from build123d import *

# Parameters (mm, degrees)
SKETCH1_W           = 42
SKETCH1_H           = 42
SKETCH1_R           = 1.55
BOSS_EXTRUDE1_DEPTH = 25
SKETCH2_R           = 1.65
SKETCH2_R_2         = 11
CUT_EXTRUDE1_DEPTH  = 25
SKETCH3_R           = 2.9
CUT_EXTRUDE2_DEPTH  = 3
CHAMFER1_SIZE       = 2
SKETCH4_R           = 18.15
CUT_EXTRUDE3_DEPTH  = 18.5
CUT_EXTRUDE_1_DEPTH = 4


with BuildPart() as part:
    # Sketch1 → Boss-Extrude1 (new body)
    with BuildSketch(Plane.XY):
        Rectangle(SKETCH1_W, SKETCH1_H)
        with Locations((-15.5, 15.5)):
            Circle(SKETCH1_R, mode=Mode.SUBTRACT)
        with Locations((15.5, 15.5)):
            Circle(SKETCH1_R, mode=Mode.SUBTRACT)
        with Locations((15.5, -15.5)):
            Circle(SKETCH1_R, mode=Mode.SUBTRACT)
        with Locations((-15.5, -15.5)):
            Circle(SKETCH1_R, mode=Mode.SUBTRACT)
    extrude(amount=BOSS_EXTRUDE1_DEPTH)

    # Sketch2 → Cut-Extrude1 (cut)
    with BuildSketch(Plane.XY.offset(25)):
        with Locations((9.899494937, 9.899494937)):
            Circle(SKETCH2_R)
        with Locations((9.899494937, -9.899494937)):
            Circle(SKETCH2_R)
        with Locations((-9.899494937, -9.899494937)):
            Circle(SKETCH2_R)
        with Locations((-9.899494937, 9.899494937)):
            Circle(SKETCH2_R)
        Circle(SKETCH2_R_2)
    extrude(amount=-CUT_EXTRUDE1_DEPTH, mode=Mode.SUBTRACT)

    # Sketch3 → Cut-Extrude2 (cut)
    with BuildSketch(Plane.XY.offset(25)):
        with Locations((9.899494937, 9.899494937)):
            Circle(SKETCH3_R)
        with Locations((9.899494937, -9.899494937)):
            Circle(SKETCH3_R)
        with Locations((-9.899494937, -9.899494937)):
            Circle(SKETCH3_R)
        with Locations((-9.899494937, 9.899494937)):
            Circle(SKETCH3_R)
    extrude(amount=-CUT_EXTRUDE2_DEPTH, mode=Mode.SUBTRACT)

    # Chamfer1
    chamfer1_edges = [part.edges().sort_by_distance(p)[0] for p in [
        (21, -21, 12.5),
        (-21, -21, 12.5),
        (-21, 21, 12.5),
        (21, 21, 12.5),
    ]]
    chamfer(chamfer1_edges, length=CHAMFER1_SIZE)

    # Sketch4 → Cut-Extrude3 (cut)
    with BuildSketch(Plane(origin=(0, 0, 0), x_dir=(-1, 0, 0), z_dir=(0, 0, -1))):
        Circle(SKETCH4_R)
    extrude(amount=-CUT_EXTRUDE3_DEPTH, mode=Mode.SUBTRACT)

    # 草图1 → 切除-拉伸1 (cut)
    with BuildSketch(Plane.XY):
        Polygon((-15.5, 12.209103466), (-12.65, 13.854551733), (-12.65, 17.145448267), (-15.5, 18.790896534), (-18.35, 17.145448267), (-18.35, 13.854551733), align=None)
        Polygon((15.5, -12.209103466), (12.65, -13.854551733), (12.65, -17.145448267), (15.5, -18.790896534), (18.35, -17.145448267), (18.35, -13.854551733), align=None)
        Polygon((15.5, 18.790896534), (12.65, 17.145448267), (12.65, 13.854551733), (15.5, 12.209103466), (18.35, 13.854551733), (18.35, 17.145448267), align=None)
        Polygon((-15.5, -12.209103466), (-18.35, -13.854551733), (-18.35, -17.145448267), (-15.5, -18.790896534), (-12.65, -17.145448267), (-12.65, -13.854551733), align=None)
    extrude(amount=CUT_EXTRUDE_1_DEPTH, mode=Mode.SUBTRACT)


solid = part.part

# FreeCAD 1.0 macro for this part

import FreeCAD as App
import Part
import Sketcher

V = App.Vector
Q = App.Units.Quantity


def edges_at(feature, points):
    """Names of the edges that pass closest to the given points."""
    edges = feature.Shape.Edges
    near = lambda p: min(range(len(edges)), key=lambda i: edges[i].distToShape(Part.Vertex(*p))[0])
    return sorted({f"Edge{near(p) + 1}" for p in points})

doc = App.newDocument("Part")
params = doc.addObject("Spreadsheet::Sheet", "Params")
for row, (alias, value) in enumerate([
    ("sketch1_diameter", "3.1 mm"),
    ("sketch1_width", "42 mm"),
    ("pad1_length", "25 mm"),
    ("sketch2_diameter", "22 mm"),
    ("sketch2_diameter2", "3.3 mm"),
    ("pocket1_length", "25 mm"),
    ("sketch3_diameter", "5.8 mm"),
    ("pocket2_length", "3 mm"),
    ("chamfer_size", "2 mm"),
    ("sketch4_diameter", "36.3 mm"),
    ("pocket3_length", "18.5 mm"),
    ("pocket4_length", "4 mm"),
], start=1):
    params.set(f"A{row}", alias)
    params.set(f"B{row}", "=" + value)
    params.setAlias(f"B{row}", alias)

body = doc.addObject("PartDesign::Body", "Body")

sketch1 = body.newObject("Sketcher::SketchObject", "Sketch")
sketch1.AttachmentSupport = (doc.getObject("XY_Plane"), [""])
sketch1.MapMode = "FlatFace"
sketch1.addGeometry(Part.LineSegment(V(-21, 21, 0), V(-21, -21, 0)), False)
sketch1.addGeometry(Part.LineSegment(V(-21, -21, 0), V(21, -21, 0)), False)
sketch1.addGeometry(Part.LineSegment(V(21, -21, 0), V(21, 21, 0)), False)
sketch1.addGeometry(Part.LineSegment(V(21, 21, 0), V(-21, 21, 0)), False)
sketch1.addGeometry(Part.Circle(V(-15.5, -15.5, 0), V(0, 0, 1), 1.6), False)
sketch1.addGeometry(Part.Circle(V(15.5, -15.5, 0), V(0, 0, 1), 1.6), False)
sketch1.addGeometry(Part.Circle(V(-15.5, 15.5, 0), V(0, 0, 1), 1.6), False)
sketch1.addGeometry(Part.Circle(V(15.5, 15.5, 0), V(0, 0, 1), 1.6), False)
sketch1.addConstraint(Sketcher.Constraint("Coincident", 0, 2, 1, 1))
sketch1.addConstraint(Sketcher.Constraint("Coincident", 1, 2, 2, 1))
sketch1.addConstraint(Sketcher.Constraint("Coincident", 2, 2, 3, 1))
sketch1.addConstraint(Sketcher.Constraint("Coincident", 3, 2, 0, 1))
sketch1.addConstraint(Sketcher.Constraint("Vertical", 0))
sketch1.addConstraint(Sketcher.Constraint("Horizontal", 1))
sketch1.addConstraint(Sketcher.Constraint("Vertical", 2))
sketch1.addConstraint(Sketcher.Constraint("Horizontal", 3))
sketch1.addConstraint(Sketcher.Constraint("Equal", 4, 5))
sketch1.addConstraint(Sketcher.Constraint("Equal", 5, 6))
sketch1.addConstraint(Sketcher.Constraint("Equal", 6, 7))
sketch1.addConstraint(Sketcher.Constraint("Symmetric", 5, 3, 6, 3, -1, 1))
sketch1.addConstraint(Sketcher.Constraint("Symmetric", 4, 3, 7, 3, -1, 1))
sketch1.addConstraint(Sketcher.Constraint("Symmetric", 0, 2, 2, 2, -1, 1))
sketch1.addConstraint(Sketcher.Constraint("Symmetric", 4, 3, 5, 3, -2))
sketch1.addConstraint(Sketcher.Constraint("Equal", 3, 0))
sketch1.addConstraint(Sketcher.Constraint("Diameter", 4, 3.1))
sketch1.addConstraint(Sketcher.Constraint("DistanceX", 1, 1, 1, 2, 42.0))
sketch1.addConstraint(Sketcher.Constraint("DistanceX", 4, 3, 5, 3, 31.0))
sketch1.addConstraint(Sketcher.Constraint("DistanceY", 4, 3, 6, 3, 31.0))
sketch1.setExpression("Constraints[16]", "Params.sketch1_diameter")
sketch1.setExpression("Constraints[17]", "Params.sketch1_width")
pad1 = body.newObject("PartDesign::Pad", "Pad")
pad1.Profile = sketch1
pad1.setExpression("Length", "Params.pad1_length")

sketch2 = body.newObject("Sketcher::SketchObject", "Sketch001")
sketch2.AttachmentSupport = (doc.getObject("XY_Plane"), [""])
sketch2.MapMode = "FlatFace"
sketch2.AttachmentOffset = App.Placement(V(0, 0, 25), App.Rotation())
sketch2.addGeometry(Part.Circle(V(9.9, 9.9, 0), V(0, 0, 1), 1.6), False)
sketch2.addGeometry(Part.Circle(V(9.9, -9.9, 0), V(0, 0, 1), 1.6), False)
sketch2.addGeometry(Part.Circle(V(-9.9, -9.9, 0), V(0, 0, 1), 1.6), False)
sketch2.addGeometry(Part.Circle(V(-9.9, 9.9, 0), V(0, 0, 1), 1.6), False)
sketch2.addGeometry(Part.Circle(V(0, 0, 0), V(0, 0, 1), 11), False)
sketch2.addConstraint(Sketcher.Constraint("Coincident", 4, 3, -1, 1))
sketch2.addConstraint(Sketcher.Constraint("Equal", 0, 1))
sketch2.addConstraint(Sketcher.Constraint("Equal", 1, 2))
sketch2.addConstraint(Sketcher.Constraint("Equal", 2, 3))
sketch2.addConstraint(Sketcher.Constraint("Symmetric", 0, 3, 2, 3, -1, 1))
sketch2.addConstraint(Sketcher.Constraint("Symmetric", 1, 3, 3, 3, -1, 1))
sketch2.addConstraint(Sketcher.Constraint("Symmetric", 1, 3, 2, 3, -2))
sketch2.addConstraint(Sketcher.Constraint("Diameter", 4, 22.0))
sketch2.addConstraint(Sketcher.Constraint("Diameter", 0, 3.3))
sketch2.addConstraint(Sketcher.Constraint("DistanceY", 1, 3, 0, 3, 19.79899))
sketch2.addConstraint(Sketcher.Constraint("DistanceX", 2, 3, 1, 3, 19.79899))
sketch2.setExpression("Constraints[7]", "Params.sketch2_diameter")
sketch2.setExpression("Constraints[8]", "Params.sketch2_diameter2")
pocket1 = body.newObject("PartDesign::Pocket", "Pocket")
pocket1.Profile = sketch2
pocket1.setExpression("Length", "Params.pocket1_length")

sketch3 = body.newObject("Sketcher::SketchObject", "Sketch002")
sketch3.AttachmentSupport = (doc.getObject("XY_Plane"), [""])
sketch3.MapMode = "FlatFace"
sketch3.AttachmentOffset = App.Placement(V(0, 0, 25), App.Rotation())
sketch3.addGeometry(Part.Circle(V(9.9, 9.9, 0), V(0, 0, 1), 2.9), False)
sketch3.addGeometry(Part.Circle(V(9.9, -9.9, 0), V(0, 0, 1), 2.9), False)
sketch3.addGeometry(Part.Circle(V(-9.9, -9.9, 0), V(0, 0, 1), 2.9), False)
sketch3.addGeometry(Part.Circle(V(-9.9, 9.9, 0), V(0, 0, 1), 2.9), False)
sketch3.addConstraint(Sketcher.Constraint("Equal", 0, 1))
sketch3.addConstraint(Sketcher.Constraint("Equal", 1, 2))
sketch3.addConstraint(Sketcher.Constraint("Equal", 2, 3))
sketch3.addConstraint(Sketcher.Constraint("Symmetric", 0, 3, 2, 3, -1, 1))
sketch3.addConstraint(Sketcher.Constraint("Symmetric", 1, 3, 3, 3, -1, 1))
sketch3.addConstraint(Sketcher.Constraint("Symmetric", 1, 3, 2, 3, -2))
sketch3.addConstraint(Sketcher.Constraint("Diameter", 0, 5.8))
sketch3.addConstraint(Sketcher.Constraint("DistanceY", 1, 3, 0, 3, 19.79899))
sketch3.addConstraint(Sketcher.Constraint("DistanceX", 2, 3, 1, 3, 19.79899))
sketch3.setExpression("Constraints[6]", "Params.sketch3_diameter")
pocket2 = body.newObject("PartDesign::Pocket", "Pocket001")
pocket2.Profile = sketch3
pocket2.setExpression("Length", "Params.pocket2_length")
doc.recompute()

chamfer = body.newObject("PartDesign::Chamfer", "Chamfer")
chamfer.Base = (pocket2, edges_at(pocket2, [
    (21, -21, 12.5),
    (-21, -21, 12.5),
    (-21, 21, 12.5),
    (21, 21, 12.5),
]))
chamfer.setExpression("Size", "Params.chamfer_size")

sketch4 = body.newObject("Sketcher::SketchObject", "Sketch003")
sketch4.AttachmentSupport = (doc.getObject("XY_Plane"), [""])
sketch4.MapMode = "FlatFace"
sketch4.addGeometry(Part.Circle(V(0, 0, 0), V(0, 0, 1), 18), False)
sketch4.addConstraint(Sketcher.Constraint("Coincident", 0, 3, -1, 1))
sketch4.addConstraint(Sketcher.Constraint("Diameter", 0, 36.3))
sketch4.setExpression("Constraints[1]", "Params.sketch4_diameter")
pocket3 = body.newObject("PartDesign::Pocket", "Pocket002")
pocket3.Profile = sketch4
pocket3.setExpression("Length", "Params.pocket3_length")
pocket3.Reversed = True

sketch5 = body.newObject("Sketcher::SketchObject", "Sketch004")
sketch5.AttachmentSupport = (doc.getObject("XY_Plane"), [""])
sketch5.MapMode = "FlatFace"
sketch5.addGeometry(Part.LineSegment(V(-15.5, 12.2, 0), V(-12.7, 13.9, 0)), False)
sketch5.addGeometry(Part.LineSegment(V(-12.7, 13.9, 0), V(-12.7, 17.1, 0)), False)
sketch5.addGeometry(Part.LineSegment(V(-12.7, 17.1, 0), V(-15.5, 18.8, 0)), False)
sketch5.addGeometry(Part.LineSegment(V(-15.5, 18.8, 0), V(-18.4, 17.1, 0)), False)
sketch5.addGeometry(Part.LineSegment(V(-18.4, 17.1, 0), V(-18.4, 13.9, 0)), False)
sketch5.addGeometry(Part.LineSegment(V(-18.4, 13.9, 0), V(-15.5, 12.2, 0)), False)
sketch5.addGeometry(Part.LineSegment(V(15.5, -12.2, 0), V(12.7, -13.9, 0)), False)
sketch5.addGeometry(Part.LineSegment(V(12.7, -13.9, 0), V(12.7, -17.1, 0)), False)
sketch5.addGeometry(Part.LineSegment(V(12.7, -17.1, 0), V(15.5, -18.8, 0)), False)
sketch5.addGeometry(Part.LineSegment(V(15.5, -18.8, 0), V(18.4, -17.1, 0)), False)
sketch5.addGeometry(Part.LineSegment(V(18.4, -17.1, 0), V(18.4, -13.9, 0)), False)
sketch5.addGeometry(Part.LineSegment(V(18.4, -13.9, 0), V(15.5, -12.2, 0)), False)
sketch5.addGeometry(Part.LineSegment(V(15.5, 18.8, 0), V(12.7, 17.1, 0)), False)
sketch5.addGeometry(Part.LineSegment(V(12.7, 17.1, 0), V(12.7, 13.9, 0)), False)
sketch5.addGeometry(Part.LineSegment(V(12.7, 13.9, 0), V(15.5, 12.2, 0)), False)
sketch5.addGeometry(Part.LineSegment(V(15.5, 12.2, 0), V(18.4, 13.9, 0)), False)
sketch5.addGeometry(Part.LineSegment(V(18.4, 13.9, 0), V(18.4, 17.1, 0)), False)
sketch5.addGeometry(Part.LineSegment(V(18.4, 17.1, 0), V(15.5, 18.8, 0)), False)
sketch5.addGeometry(Part.LineSegment(V(-15.5, -12.2, 0), V(-18.4, -13.9, 0)), False)
sketch5.addGeometry(Part.LineSegment(V(-18.4, -13.9, 0), V(-18.4, -17.1, 0)), False)
sketch5.addGeometry(Part.LineSegment(V(-18.4, -17.1, 0), V(-15.5, -18.8, 0)), False)
sketch5.addGeometry(Part.LineSegment(V(-15.5, -18.8, 0), V(-12.7, -17.1, 0)), False)
sketch5.addGeometry(Part.LineSegment(V(-12.7, -17.1, 0), V(-12.7, -13.9, 0)), False)
sketch5.addGeometry(Part.LineSegment(V(-12.7, -13.9, 0), V(-15.5, -12.2, 0)), False)
sketch5.addConstraint(Sketcher.Constraint("Coincident", 0, 2, 1, 1))
sketch5.addConstraint(Sketcher.Constraint("Coincident", 1, 2, 2, 1))
sketch5.addConstraint(Sketcher.Constraint("Coincident", 2, 2, 3, 1))
sketch5.addConstraint(Sketcher.Constraint("Coincident", 3, 2, 4, 1))
sketch5.addConstraint(Sketcher.Constraint("Coincident", 4, 2, 5, 1))
sketch5.addConstraint(Sketcher.Constraint("Coincident", 5, 2, 0, 1))
sketch5.addConstraint(Sketcher.Constraint("Coincident", 6, 2, 7, 1))
sketch5.addConstraint(Sketcher.Constraint("Coincident", 7, 2, 8, 1))
sketch5.addConstraint(Sketcher.Constraint("Coincident", 8, 2, 9, 1))
sketch5.addConstraint(Sketcher.Constraint("Coincident", 9, 2, 10, 1))
sketch5.addConstraint(Sketcher.Constraint("Coincident", 10, 2, 11, 1))
sketch5.addConstraint(Sketcher.Constraint("Coincident", 11, 2, 6, 1))
sketch5.addConstraint(Sketcher.Constraint("Coincident", 12, 2, 13, 1))
sketch5.addConstraint(Sketcher.Constraint("Coincident", 13, 2, 14, 1))
sketch5.addConstraint(Sketcher.Constraint("Coincident", 14, 2, 15, 1))
sketch5.addConstraint(Sketcher.Constraint("Coincident", 15, 2, 16, 1))
sketch5.addConstraint(Sketcher.Constraint("Coincident", 16, 2, 17, 1))
sketch5.addConstraint(Sketcher.Constraint("Coincident", 17, 2, 12, 1))
sketch5.addConstraint(Sketcher.Constraint("Coincident", 18, 2, 19, 1))
sketch5.addConstraint(Sketcher.Constraint("Coincident", 19, 2, 20, 1))
sketch5.addConstraint(Sketcher.Constraint("Coincident", 20, 2, 21, 1))
sketch5.addConstraint(Sketcher.Constraint("Coincident", 21, 2, 22, 1))
sketch5.addConstraint(Sketcher.Constraint("Coincident", 22, 2, 23, 1))
sketch5.addConstraint(Sketcher.Constraint("Coincident", 23, 2, 18, 1))
sketch5.addConstraint(Sketcher.Constraint("Vertical", 1))
sketch5.addConstraint(Sketcher.Constraint("Vertical", 4))
sketch5.addConstraint(Sketcher.Constraint("Vertical", 7))
sketch5.addConstraint(Sketcher.Constraint("Vertical", 10))
sketch5.addConstraint(Sketcher.Constraint("Vertical", 13))
sketch5.addConstraint(Sketcher.Constraint("Vertical", 16))
sketch5.addConstraint(Sketcher.Constraint("Vertical", 19))
sketch5.addConstraint(Sketcher.Constraint("Vertical", 22))
sketch5.addConstraint(Sketcher.Constraint("Symmetric", 0, 2, 6, 2, -1, 1))
sketch5.addConstraint(Sketcher.Constraint("Symmetric", 2, 2, 8, 2, -1, 1))
sketch5.addConstraint(Sketcher.Constraint("Symmetric", 3, 2, 9, 2, -1, 1))
sketch5.addConstraint(Sketcher.Constraint("Symmetric", 5, 2, 11, 2, -1, 1))
sketch5.addConstraint(Sketcher.Constraint("Symmetric", 15, 2, 18, 2, -1, 1))
sketch5.addConstraint(Sketcher.Constraint("Symmetric", 17, 2, 20, 2, -1, 1))
sketch5.addConstraint(Sketcher.Constraint("Symmetric", 12, 2, 21, 2, -1, 1))
sketch5.addConstraint(Sketcher.Constraint("Symmetric", 14, 2, 23, 2, -1, 1))
sketch5.addConstraint(Sketcher.Constraint("Symmetric", 1, 2, 12, 2, -2))
sketch5.addConstraint(Sketcher.Constraint("Symmetric", 5, 2, 14, 2, -2))
sketch5.addConstraint(Sketcher.Constraint("Symmetric", 4, 2, 15, 2, -2))
sketch5.addConstraint(Sketcher.Constraint("Symmetric", 2, 2, 17, 2, -2))
sketch5.addConstraint(Sketcher.Constraint("Parallel", 0, 3))
sketch5.addConstraint(Sketcher.Constraint("Parallel", 2, 5))
sketch5.addConstraint(Sketcher.Constraint("Parallel", 5, 8))
sketch5.addConstraint(Sketcher.Constraint("Parallel", 8, 11))
sketch5.addConstraint(Sketcher.Constraint("Parallel", 9, 12))
sketch5.addConstraint(Sketcher.Constraint("Parallel", 11, 14))
sketch5.addConstraint(Sketcher.Constraint("Parallel", 14, 17))
sketch5.addConstraint(Sketcher.Constraint("Parallel", 17, 20))
sketch5.addConstraint(Sketcher.Constraint("Parallel", 20, 23))
sketch5.addConstraint(Sketcher.Constraint("Horizontal", 1, 2, 3, 2))
sketch5.addConstraint(Sketcher.Constraint("Horizontal", 0, 2, 4, 2))
sketch5.addConstraint(Sketcher.Constraint("Angle", 0, Q("30 deg")))
sketch5.addConstraint(Sketcher.Constraint("DistanceY", 6, 2, 1, 2, 31.0))
sketch5.addConstraint(Sketcher.Constraint("DistanceX", 4, 2, 6, 2, 31.0))
sketch5.addConstraint(Sketcher.Constraint("DistanceX", 3, 2, 1, 2, 5.7))
sketch5.addConstraint(Sketcher.Constraint("DistanceY", 1, 1, 1, 2, 3.290897))
pocket4 = body.newObject("PartDesign::Pocket", "Pocket003")
pocket4.Profile = sketch5
pocket4.setExpression("Length", "Params.pocket4_length")
pocket4.Reversed = True

doc.recompute()
